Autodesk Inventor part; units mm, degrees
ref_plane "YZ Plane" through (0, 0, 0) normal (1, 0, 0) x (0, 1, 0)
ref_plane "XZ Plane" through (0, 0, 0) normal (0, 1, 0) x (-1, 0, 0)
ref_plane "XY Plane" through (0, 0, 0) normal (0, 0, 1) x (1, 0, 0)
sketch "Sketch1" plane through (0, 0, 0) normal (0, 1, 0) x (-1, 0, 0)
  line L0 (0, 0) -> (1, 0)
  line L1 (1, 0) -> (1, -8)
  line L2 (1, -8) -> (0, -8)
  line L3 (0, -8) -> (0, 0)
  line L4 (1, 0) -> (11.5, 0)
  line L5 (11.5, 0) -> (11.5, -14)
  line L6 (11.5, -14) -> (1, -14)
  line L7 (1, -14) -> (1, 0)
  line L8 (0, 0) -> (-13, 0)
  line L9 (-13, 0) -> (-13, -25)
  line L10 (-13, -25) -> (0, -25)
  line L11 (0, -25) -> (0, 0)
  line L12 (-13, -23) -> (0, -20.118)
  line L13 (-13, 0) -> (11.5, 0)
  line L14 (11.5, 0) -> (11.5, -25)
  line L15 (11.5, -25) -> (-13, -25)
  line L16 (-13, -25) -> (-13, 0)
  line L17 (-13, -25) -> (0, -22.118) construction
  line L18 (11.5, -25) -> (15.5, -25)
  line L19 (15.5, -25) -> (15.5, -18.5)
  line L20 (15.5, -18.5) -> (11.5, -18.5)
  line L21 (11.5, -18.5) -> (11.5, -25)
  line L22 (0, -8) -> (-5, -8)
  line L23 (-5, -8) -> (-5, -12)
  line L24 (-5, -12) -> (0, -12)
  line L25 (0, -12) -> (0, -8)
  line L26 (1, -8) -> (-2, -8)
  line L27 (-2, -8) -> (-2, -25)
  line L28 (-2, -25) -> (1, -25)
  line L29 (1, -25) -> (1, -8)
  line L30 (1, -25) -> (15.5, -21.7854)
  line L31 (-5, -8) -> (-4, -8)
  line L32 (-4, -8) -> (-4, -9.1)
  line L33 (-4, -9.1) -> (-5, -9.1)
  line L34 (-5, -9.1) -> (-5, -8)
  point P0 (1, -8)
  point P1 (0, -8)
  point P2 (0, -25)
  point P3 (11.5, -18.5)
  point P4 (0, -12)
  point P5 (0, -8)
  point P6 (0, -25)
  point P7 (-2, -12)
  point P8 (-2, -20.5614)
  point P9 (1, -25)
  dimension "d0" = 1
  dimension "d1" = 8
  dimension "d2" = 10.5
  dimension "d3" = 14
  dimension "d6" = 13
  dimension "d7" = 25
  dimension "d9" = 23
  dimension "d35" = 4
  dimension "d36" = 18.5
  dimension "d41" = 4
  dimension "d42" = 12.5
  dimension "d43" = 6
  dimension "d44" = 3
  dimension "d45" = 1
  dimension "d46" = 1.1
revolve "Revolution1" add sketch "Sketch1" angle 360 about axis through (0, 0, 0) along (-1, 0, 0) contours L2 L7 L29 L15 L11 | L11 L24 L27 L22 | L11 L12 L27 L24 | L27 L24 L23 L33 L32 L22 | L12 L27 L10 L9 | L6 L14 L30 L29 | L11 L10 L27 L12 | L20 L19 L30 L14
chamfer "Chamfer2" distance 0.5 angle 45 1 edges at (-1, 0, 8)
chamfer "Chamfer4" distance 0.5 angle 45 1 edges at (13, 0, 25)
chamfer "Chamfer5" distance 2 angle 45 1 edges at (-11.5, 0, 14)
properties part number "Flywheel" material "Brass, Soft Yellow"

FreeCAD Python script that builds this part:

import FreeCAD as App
import Part
import Sketcher
from FreeCAD import Vector
Q = App.Units.Quantity


def edges_at(feature, points):
    """Names of the edges that pass closest to the given points."""
    edges = feature.Shape.Edges
    near = lambda p: min(range(len(edges)), key=lambda i: edges[i].distToShape(Part.Vertex(*p))[0])
    return sorted({f"Edge{near(p) + 1}" for p in points})

doc = App.newDocument("Part")
body = doc.addObject("PartDesign::Body", "Body")

# Sketch on XZ plane
sketch1 = body.newObject("Sketcher::SketchObject", "Sketch")
sketch1.AttachmentSupport = (doc.getObject("XZ_Plane"), [""])
sketch1.MapMode = "FlatFace"
sketch1.addGeometry([
    Part.LineSegment(Vector(-1, -8, 0), Vector(4, -8, 0)),  # 0
    Part.LineSegment(Vector(4, -8, 0), Vector(4, -9.1, 0)),  # 1
    Part.LineSegment(Vector(4, -9.1, 0), Vector(5, -9.1, 0)),  # 2
    Part.LineSegment(Vector(5, -9.1, 0), Vector(5, -12, 0)),  # 3
    Part.LineSegment(Vector(5, -12, 0), Vector(2, -12, 0)),  # 4
    Part.LineSegment(Vector(2, -12, 0), Vector(2, -20.561385, 0)),  # 5
    Part.LineSegment(Vector(2, -20.561385, 0), Vector(13, -23, 0)),  # 6
    Part.LineSegment(Vector(13, -23, 0), Vector(13, -25, 0)),  # 7
    Part.LineSegment(Vector(13, -25, 0), Vector(-1, -25, 0)),  # 8
    Part.LineSegment(Vector(-1, -25, 0), Vector(-15.5, -21.7854, 0)),  # 9
    Part.LineSegment(Vector(-15.5, -21.7854, 0), Vector(-15.5, -18.5, 0)),  # 10
    Part.LineSegment(Vector(-15.5, -18.5, 0), Vector(-11.5, -18.5, 0)),  # 11
    Part.LineSegment(Vector(-11.5, -18.5, 0), Vector(-11.5, -14, 0)),  # 12
    Part.LineSegment(Vector(-11.5, -14, 0), Vector(-1, -14, 0)),  # 13
    Part.LineSegment(Vector(-1, -14, 0), Vector(-1, -8, 0)),  # 14
], False)
sketch1.addConstraint([
    Sketcher.Constraint("Coincident", 0, 2, 1, 1),
    Sketcher.Constraint("Coincident", 1, 2, 2, 1),
    Sketcher.Constraint("Coincident", 2, 2, 3, 1),
    Sketcher.Constraint("Coincident", 3, 2, 4, 1),
    Sketcher.Constraint("Coincident", 4, 2, 5, 1),
    Sketcher.Constraint("Coincident", 5, 2, 6, 1),
    Sketcher.Constraint("Coincident", 6, 2, 7, 1),
    Sketcher.Constraint("Coincident", 7, 2, 8, 1),
    Sketcher.Constraint("Coincident", 8, 2, 9, 1),
    Sketcher.Constraint("Coincident", 9, 2, 10, 1),
    Sketcher.Constraint("Coincident", 10, 2, 11, 1),
    Sketcher.Constraint("Coincident", 11, 2, 12, 1),
    Sketcher.Constraint("Coincident", 12, 2, 13, 1),
    Sketcher.Constraint("Coincident", 13, 2, 14, 1),
    Sketcher.Constraint("Coincident", 14, 2, 0, 1),
    Sketcher.Constraint("Horizontal", 0),
    Sketcher.Constraint("Vertical", 1),
    Sketcher.Constraint("Horizontal", 2),
    Sketcher.Constraint("Vertical", 3),
    Sketcher.Constraint("Horizontal", 4),
    Sketcher.Constraint("Vertical", 5),
    Sketcher.Constraint("Vertical", 7),
    Sketcher.Constraint("Horizontal", 8),
    Sketcher.Constraint("Vertical", 10),
    Sketcher.Constraint("Horizontal", 11),
    Sketcher.Constraint("Vertical", 12),
    Sketcher.Constraint("Horizontal", 13),
    Sketcher.Constraint("Vertical", 14),
    Sketcher.Constraint("Parallel", 6, 9),
    Sketcher.Constraint("Vertical", 8, 2, 13, 2),
    Sketcher.Constraint("DistanceX", 2, 1, 2, 2, Q("1 mm")),
    Sketcher.Constraint("DistanceX", 4, 2, 4, 1, Q("3 mm")),
    Sketcher.Constraint("DistanceX", 8, 2, 8, 1, Q("14 mm")),
    Sketcher.Constraint("DistanceX", 11, 1, 11, 2, Q("4 mm")),
    Sketcher.Constraint("DistanceY", 14, 1, 14, 2, Q("6 mm")),
    Sketcher.Constraint("DistanceX", 13, 1, 13, 2, Q("10.5 mm")),
    Sketcher.Constraint("DistanceY", 1, 2, 1, 1, Q("1.1 mm")),
    Sketcher.Constraint("DistanceX", -1, 1, 0, 2, Q("4 mm")),
    Sketcher.Constraint("DistanceY", 0, 2, -1, 1, Q("8 mm")),
    Sketcher.Constraint("DistanceX", -1, 1, 6, 2, Q("13 mm")),
    Sketcher.Constraint("DistanceY", 6, 2, -1, 1, Q("23 mm")),
    Sketcher.Constraint("DistanceY", 7, 2, -1, 1, Q("25 mm")),
    Sketcher.Constraint("Angle", 6, Q("-12.4999 deg")),
    Sketcher.Constraint("DistanceY", 3, 2, 0, 2, Q("4 mm")),
    Sketcher.Constraint("DistanceY", 10, 2, -1, 1, Q("18.5 mm")),
])
revolution = body.newObject("PartDesign::Revolution", "Revolution")
revolution.Profile = sketch1
revolution.ReferenceAxis = (sketch1, ["H_Axis"])
revolution.Angle = 360
doc.recompute()

chamfer = body.newObject("PartDesign::Chamfer", "Chamfer")
chamfer.Base = (revolution, edges_at(revolution, [(-1, 0, 8)]))
chamfer.Size = 0.5
doc.recompute()

chamfer2 = body.newObject("PartDesign::Chamfer", "Chamfer001")
chamfer2.Base = (chamfer, edges_at(chamfer, [(13, 0, 25)]))
chamfer2.Size = 0.5
doc.recompute()

chamfer3 = body.newObject("PartDesign::Chamfer", "Chamfer002")
chamfer3.Base = (chamfer2, edges_at(chamfer2, [(-11.5, 0, 14)]))
chamfer3.Size = 2

doc.recompute()
